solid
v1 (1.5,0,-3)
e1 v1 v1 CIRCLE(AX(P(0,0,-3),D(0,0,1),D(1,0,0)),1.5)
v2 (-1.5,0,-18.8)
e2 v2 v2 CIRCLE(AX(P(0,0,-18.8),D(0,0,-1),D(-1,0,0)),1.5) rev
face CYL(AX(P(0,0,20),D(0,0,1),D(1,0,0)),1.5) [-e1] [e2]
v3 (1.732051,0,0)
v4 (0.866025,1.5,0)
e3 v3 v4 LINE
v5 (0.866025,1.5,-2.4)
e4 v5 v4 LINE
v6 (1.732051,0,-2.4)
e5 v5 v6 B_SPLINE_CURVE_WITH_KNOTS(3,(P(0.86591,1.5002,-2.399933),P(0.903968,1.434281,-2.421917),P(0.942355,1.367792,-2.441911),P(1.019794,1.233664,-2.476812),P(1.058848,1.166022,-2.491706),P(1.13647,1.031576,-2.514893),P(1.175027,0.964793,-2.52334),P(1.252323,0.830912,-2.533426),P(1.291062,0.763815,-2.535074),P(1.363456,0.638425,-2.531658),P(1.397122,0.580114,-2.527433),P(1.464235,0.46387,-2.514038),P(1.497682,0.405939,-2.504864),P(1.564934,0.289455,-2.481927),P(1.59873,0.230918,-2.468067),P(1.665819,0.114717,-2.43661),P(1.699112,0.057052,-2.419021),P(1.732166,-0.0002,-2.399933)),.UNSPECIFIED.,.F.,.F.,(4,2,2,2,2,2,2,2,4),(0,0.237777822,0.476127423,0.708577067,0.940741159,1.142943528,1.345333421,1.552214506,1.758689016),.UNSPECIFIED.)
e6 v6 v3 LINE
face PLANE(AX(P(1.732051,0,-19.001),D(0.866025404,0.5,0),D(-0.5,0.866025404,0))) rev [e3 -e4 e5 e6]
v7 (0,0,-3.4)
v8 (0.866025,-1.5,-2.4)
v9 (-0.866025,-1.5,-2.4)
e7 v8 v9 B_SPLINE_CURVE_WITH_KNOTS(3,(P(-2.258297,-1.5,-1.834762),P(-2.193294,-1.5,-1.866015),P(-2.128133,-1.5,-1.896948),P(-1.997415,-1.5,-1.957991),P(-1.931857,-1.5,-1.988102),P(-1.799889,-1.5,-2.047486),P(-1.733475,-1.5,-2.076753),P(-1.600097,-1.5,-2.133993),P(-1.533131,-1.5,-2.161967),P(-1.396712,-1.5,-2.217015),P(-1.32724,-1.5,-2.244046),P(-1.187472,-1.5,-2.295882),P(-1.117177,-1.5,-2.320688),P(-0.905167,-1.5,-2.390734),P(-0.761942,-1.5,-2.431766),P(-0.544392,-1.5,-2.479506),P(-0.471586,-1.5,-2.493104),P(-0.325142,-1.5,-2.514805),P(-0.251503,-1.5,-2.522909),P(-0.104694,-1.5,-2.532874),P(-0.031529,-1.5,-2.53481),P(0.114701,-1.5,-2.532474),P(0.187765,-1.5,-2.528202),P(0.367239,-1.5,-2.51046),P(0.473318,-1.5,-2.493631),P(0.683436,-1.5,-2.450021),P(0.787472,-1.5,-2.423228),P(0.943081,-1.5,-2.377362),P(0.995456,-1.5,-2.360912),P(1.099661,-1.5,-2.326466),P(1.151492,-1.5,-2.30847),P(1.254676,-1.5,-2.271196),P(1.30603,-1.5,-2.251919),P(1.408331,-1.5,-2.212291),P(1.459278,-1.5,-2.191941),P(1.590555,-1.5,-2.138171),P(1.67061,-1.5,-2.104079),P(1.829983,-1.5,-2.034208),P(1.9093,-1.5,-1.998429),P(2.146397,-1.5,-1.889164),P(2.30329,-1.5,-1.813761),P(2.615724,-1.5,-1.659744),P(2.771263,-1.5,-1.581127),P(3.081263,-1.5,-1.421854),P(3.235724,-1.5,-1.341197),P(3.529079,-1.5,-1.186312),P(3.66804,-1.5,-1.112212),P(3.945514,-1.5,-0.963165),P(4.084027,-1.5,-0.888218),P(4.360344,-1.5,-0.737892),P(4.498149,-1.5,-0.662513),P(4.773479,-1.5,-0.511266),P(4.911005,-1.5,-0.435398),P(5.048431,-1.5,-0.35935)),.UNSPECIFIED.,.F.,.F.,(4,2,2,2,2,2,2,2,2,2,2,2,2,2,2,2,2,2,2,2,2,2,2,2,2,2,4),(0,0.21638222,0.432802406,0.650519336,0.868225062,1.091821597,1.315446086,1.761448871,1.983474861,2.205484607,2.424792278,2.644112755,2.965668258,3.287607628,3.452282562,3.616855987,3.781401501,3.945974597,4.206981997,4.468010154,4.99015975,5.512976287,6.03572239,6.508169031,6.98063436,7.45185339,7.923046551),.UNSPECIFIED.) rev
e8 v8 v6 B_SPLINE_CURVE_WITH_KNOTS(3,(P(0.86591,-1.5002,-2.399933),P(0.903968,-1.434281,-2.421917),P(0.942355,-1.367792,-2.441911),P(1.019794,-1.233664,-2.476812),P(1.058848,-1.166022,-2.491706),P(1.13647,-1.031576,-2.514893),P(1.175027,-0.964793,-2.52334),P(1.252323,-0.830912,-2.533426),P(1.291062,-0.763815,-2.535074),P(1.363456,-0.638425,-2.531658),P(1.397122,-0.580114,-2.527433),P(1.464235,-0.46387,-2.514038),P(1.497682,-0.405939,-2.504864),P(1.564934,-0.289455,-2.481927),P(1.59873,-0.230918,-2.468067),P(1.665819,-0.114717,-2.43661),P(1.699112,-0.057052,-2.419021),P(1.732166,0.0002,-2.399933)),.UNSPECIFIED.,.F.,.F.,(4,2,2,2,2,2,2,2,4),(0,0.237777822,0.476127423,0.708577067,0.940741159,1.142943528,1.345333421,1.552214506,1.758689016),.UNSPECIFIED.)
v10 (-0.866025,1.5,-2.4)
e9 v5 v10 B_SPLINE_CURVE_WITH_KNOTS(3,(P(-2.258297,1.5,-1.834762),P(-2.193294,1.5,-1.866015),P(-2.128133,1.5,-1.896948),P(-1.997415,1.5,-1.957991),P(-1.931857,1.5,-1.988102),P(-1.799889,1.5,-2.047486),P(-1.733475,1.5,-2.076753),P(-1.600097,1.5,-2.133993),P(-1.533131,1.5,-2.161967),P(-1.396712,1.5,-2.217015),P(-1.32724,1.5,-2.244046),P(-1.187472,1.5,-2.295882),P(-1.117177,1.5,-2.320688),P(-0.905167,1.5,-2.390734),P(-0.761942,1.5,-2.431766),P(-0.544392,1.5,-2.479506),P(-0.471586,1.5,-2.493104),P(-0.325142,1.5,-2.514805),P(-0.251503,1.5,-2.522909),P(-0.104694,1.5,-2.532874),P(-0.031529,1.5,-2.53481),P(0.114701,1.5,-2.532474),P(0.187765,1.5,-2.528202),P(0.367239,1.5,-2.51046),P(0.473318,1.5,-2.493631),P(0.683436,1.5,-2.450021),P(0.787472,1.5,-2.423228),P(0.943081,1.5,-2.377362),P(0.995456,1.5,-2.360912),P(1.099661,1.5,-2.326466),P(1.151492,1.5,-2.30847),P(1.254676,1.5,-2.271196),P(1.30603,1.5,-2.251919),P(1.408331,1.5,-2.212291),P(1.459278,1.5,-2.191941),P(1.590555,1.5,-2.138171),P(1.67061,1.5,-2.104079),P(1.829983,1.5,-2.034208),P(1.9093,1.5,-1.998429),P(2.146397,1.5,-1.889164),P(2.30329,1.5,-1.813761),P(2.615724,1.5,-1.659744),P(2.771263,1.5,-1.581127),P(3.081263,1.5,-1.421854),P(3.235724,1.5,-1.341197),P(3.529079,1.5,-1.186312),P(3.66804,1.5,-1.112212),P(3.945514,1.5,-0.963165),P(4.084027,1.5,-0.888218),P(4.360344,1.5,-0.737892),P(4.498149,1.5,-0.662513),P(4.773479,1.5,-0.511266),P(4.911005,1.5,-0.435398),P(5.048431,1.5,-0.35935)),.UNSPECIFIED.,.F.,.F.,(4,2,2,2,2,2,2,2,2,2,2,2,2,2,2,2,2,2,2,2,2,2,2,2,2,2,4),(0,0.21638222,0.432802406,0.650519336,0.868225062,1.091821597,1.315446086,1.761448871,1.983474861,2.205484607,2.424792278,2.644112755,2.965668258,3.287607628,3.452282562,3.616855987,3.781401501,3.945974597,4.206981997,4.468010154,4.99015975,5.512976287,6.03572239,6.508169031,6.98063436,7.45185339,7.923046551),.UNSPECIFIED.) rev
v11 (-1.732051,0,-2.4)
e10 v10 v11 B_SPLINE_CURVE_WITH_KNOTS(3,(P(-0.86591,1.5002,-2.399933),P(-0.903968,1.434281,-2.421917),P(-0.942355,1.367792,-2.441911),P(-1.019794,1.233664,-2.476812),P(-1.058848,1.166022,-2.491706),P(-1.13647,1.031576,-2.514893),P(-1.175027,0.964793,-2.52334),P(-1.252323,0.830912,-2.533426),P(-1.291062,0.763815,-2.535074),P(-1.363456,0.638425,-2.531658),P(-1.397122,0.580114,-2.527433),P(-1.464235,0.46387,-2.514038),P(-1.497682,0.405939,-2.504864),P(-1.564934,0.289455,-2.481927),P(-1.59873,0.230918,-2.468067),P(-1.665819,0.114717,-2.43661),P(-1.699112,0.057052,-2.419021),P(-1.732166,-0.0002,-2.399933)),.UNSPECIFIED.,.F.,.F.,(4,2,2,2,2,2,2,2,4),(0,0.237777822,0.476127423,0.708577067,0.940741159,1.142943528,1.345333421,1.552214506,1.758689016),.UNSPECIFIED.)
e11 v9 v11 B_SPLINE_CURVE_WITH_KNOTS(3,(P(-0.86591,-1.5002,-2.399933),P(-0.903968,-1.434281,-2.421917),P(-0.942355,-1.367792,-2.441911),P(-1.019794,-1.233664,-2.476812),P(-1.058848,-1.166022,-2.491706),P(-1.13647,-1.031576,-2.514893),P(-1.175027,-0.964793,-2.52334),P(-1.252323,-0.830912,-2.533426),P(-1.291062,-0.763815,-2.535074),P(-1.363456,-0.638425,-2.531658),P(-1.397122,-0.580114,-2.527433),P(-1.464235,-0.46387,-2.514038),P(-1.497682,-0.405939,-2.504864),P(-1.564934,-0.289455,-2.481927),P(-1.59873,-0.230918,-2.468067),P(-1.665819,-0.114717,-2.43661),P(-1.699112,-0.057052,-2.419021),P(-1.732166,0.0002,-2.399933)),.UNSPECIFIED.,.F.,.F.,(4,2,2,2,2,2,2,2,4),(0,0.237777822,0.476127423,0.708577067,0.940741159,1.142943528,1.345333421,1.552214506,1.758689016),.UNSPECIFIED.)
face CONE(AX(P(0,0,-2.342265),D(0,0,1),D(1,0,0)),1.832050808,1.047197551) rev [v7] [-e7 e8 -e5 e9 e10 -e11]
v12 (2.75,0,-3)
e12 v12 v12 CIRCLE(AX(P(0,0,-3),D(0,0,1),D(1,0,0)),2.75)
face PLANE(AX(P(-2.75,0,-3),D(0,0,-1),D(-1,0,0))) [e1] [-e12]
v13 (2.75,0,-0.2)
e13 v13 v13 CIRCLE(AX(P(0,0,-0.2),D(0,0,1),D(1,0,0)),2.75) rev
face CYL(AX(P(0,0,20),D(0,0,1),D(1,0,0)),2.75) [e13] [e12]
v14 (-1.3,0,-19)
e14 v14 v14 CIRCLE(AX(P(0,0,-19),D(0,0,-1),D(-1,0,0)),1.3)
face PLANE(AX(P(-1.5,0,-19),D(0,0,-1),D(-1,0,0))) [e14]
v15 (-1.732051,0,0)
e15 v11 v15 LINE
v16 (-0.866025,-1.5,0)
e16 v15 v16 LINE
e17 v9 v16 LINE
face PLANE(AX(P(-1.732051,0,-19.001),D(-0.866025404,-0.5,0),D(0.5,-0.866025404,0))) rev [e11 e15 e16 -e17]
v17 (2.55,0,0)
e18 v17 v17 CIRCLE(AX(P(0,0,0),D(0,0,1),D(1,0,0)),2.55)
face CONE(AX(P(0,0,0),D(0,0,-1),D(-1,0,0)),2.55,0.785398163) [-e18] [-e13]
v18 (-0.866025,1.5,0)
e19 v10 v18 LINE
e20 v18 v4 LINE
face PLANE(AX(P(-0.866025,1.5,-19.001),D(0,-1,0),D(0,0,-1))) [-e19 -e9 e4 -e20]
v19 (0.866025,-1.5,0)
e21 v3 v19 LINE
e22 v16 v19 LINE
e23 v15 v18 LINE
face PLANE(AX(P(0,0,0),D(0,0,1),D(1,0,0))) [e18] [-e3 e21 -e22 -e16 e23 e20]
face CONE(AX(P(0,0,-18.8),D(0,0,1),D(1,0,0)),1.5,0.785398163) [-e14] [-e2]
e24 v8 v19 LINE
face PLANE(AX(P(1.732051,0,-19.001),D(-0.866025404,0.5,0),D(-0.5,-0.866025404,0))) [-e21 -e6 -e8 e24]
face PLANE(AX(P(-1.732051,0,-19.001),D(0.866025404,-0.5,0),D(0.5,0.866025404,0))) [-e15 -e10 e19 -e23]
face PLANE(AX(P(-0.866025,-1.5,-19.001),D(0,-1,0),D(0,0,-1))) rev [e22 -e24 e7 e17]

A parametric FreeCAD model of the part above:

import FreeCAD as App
import Part
import Sketcher

V = App.Vector
Q = App.Units.Quantity


def edges_at(feature, points):
    """Names of the edges that pass closest to the given points."""
    edges = feature.Shape.Edges
    near = lambda p: min(range(len(edges)), key=lambda i: edges[i].distToShape(Part.Vertex(*p))[0])
    return sorted({f"Edge{near(p) + 1}" for p in points})

doc = App.newDocument("Part")
params = doc.addObject("Spreadsheet::Sheet", "Params")
for row, (alias, value) in enumerate([
    ("sketch1_height", "19 mm"),
    ("sketch1_height2", "16 mm"),
    ("sketch1_width", "1.5 mm"),
    ("sketch1_width2", "2.75 mm"),
    ("revolution_angle", "360 deg"),
    ("chamfer_size", "0.2 mm"),
    ("chamfer2_size", "0.2 mm"),
    ("pocket1_length", "2.4 mm"),
    ("sketch3_height", "3.4 mm"),
    ("groove_angle", "360 deg"),
], start=1):
    params.set(f"A{row}", alias)
    params.set(f"B{row}", "=" + value)
    params.setAlias(f"B{row}", alias)

body = doc.addObject("PartDesign::Body", "Body")

sketch1 = doc.addObject("Sketcher::SketchObject", "Sketch")
body.addObject(sketch1)
sketch1.AttachmentSupport = (doc.XZ_Plane, [""])
sketch1.MapMode = "FlatFace"
sketch1.addGeometry(Part.LineSegment(V(-2.8, 0, 0), V(0, 0, 0)), False)
sketch1.addGeometry(Part.LineSegment(V(0, 0, 0), V(0, -19, 0)), False)
sketch1.addGeometry(Part.LineSegment(V(0, -19, 0), V(-1.5, -19, 0)), False)
sketch1.addGeometry(Part.LineSegment(V(-1.5, -19, 0), V(-1.5, -3, 0)), False)
sketch1.addGeometry(Part.LineSegment(V(-1.5, -3, 0), V(-2.8, -3, 0)), False)
sketch1.addGeometry(Part.LineSegment(V(-2.8, -3, 0), V(-2.8, 0, 0)), False)
sketch1.addConstraint(Sketcher.Constraint("Coincident", 0, 2, 1, 1))
sketch1.addConstraint(Sketcher.Constraint("Coincident", 1, 2, 2, 1))
sketch1.addConstraint(Sketcher.Constraint("Coincident", 2, 2, 3, 1))
sketch1.addConstraint(Sketcher.Constraint("Coincident", 3, 2, 4, 1))
sketch1.addConstraint(Sketcher.Constraint("Coincident", 4, 2, 5, 1))
sketch1.addConstraint(Sketcher.Constraint("Coincident", 5, 2, 0, 1))
sketch1.addConstraint(Sketcher.Constraint("Horizontal", 0))
sketch1.addConstraint(Sketcher.Constraint("Vertical", 1))
sketch1.addConstraint(Sketcher.Constraint("Horizontal", 2))
sketch1.addConstraint(Sketcher.Constraint("Vertical", 3))
sketch1.addConstraint(Sketcher.Constraint("Horizontal", 4))
sketch1.addConstraint(Sketcher.Constraint("Vertical", 5))
sketch1.addConstraint(Sketcher.Constraint("Coincident", 0, 2, -1, 1))
sketch1.addConstraint(Sketcher.Constraint("DistanceY", 1, 2, 1, 1, 19.0))
sketch1.addConstraint(Sketcher.Constraint("DistanceY", 3, 1, 3, 2, 16.0))
sketch1.addConstraint(Sketcher.Constraint("DistanceX", 2, 2, 2, 1, 1.5))
sketch1.addConstraint(Sketcher.Constraint("DistanceX", 0, 1, 0, 2, 2.75))
sketch1.setExpression("Constraints[13]", "Params.sketch1_height")
sketch1.setExpression("Constraints[14]", "Params.sketch1_height2")
sketch1.setExpression("Constraints[15]", "Params.sketch1_width")
sketch1.setExpression("Constraints[16]", "Params.sketch1_width2")
revolution = doc.addObject("PartDesign::Revolution", "Revolution")
body.addObject(revolution)
revolution.Profile = sketch1
revolution.ReferenceAxis = (sketch1, ["V_Axis"])
revolution.setExpression("Angle", "Params.revolution_angle")
doc.recompute()

chamfer = doc.addObject("PartDesign::Chamfer", "Chamfer")
body.addObject(chamfer)
chamfer.Base = (revolution, edges_at(revolution, [(2.75, 0, 0)]))
chamfer.setExpression("Size", "Params.chamfer_size")
doc.recompute()

chamfer2 = doc.addObject("PartDesign::Chamfer", "Chamfer001")
body.addObject(chamfer2)
chamfer2.Base = (chamfer, edges_at(chamfer, [(1.5, 0, -19)]))
chamfer2.setExpression("Size", "Params.chamfer2_size")

sketch2 = doc.addObject("Sketcher::SketchObject", "Sketch001")
body.addObject(sketch2)
sketch2.AttachmentSupport = (doc.XY_Plane, [""])
sketch2.MapMode = "FlatFace"
sketch2.addGeometry(Part.LineSegment(V(-0.9, 1.5, 0), V(-1.7, 0, 0)), False)
sketch2.addGeometry(Part.LineSegment(V(-1.7, 0, 0), V(-0.9, -1.5, 0)), False)
sketch2.addGeometry(Part.LineSegment(V(-0.9, -1.5, 0), V(0.9, -1.5, 0)), False)
sketch2.addGeometry(Part.LineSegment(V(0.9, -1.5, 0), V(1.7, 0, 0)), False)
sketch2.addGeometry(Part.LineSegment(V(1.7, 0, 0), V(0.9, 1.5, 0)), False)
sketch2.addGeometry(Part.LineSegment(V(0.9, 1.5, 0), V(-0.9, 1.5, 0)), False)
sketch2.addConstraint(Sketcher.Constraint("Coincident", 0, 2, 1, 1))
sketch2.addConstraint(Sketcher.Constraint("Coincident", 1, 2, 2, 1))
sketch2.addConstraint(Sketcher.Constraint("Coincident", 2, 2, 3, 1))
sketch2.addConstraint(Sketcher.Constraint("Coincident", 3, 2, 4, 1))
sketch2.addConstraint(Sketcher.Constraint("Coincident", 4, 2, 5, 1))
sketch2.addConstraint(Sketcher.Constraint("Coincident", 5, 2, 0, 1))
sketch2.addConstraint(Sketcher.Constraint("Horizontal", 2))
sketch2.addConstraint(Sketcher.Constraint("Horizontal", 5))
sketch2.addConstraint(Sketcher.Constraint("Symmetric", 0, 2, 3, 2, -1, 1))
sketch2.addConstraint(Sketcher.Constraint("Symmetric", 1, 2, 4, 2, -1, 1))
sketch2.addConstraint(Sketcher.Constraint("PointOnObject", 0, 2, -1))
sketch2.addConstraint(Sketcher.Constraint("Parallel", 0, 3))
sketch2.addConstraint(Sketcher.Constraint("Vertical", 2, 2, 4, 2))
sketch2.addConstraint(Sketcher.Constraint("Angle", 0, Q("-120 deg")))
sketch2.addConstraint(Sketcher.Constraint("DistanceY", 2, 2, 4, 2, 3.0))
sketch2.addConstraint(Sketcher.Constraint("DistanceX", 2, 1, 2, 2, 1.732051))
pocket1 = doc.addObject("PartDesign::Pocket", "Pocket")
body.addObject(pocket1)
pocket1.Profile = sketch2
pocket1.setExpression("Length", "Params.pocket1_length")

sketch3 = doc.addObject("Sketcher::SketchObject", "Sketch002")
body.addObject(sketch3)
sketch3.AttachmentSupport = (doc.XZ_Plane, [""])
sketch3.MapMode = "FlatFace"
sketch3.addGeometry(Part.LineSegment(V(-1.8, 0, 0), V(0, 0, 0)), False)
sketch3.addGeometry(Part.LineSegment(V(0, 0, 0), V(0, -3.4, 0)), False)
sketch3.addGeometry(Part.LineSegment(V(0, -3.4, 0), V(-1.8, -2.3, 0)), False)
sketch3.addGeometry(Part.LineSegment(V(-1.8, -2.3, 0), V(-1.8, 0, 0)), False)
sketch3.addConstraint(Sketcher.Constraint("Coincident", 0, 2, 1, 1))
sketch3.addConstraint(Sketcher.Constraint("Coincident", 1, 2, 2, 1))
sketch3.addConstraint(Sketcher.Constraint("Coincident", 2, 2, 3, 1))
sketch3.addConstraint(Sketcher.Constraint("Coincident", 3, 2, 0, 1))
sketch3.addConstraint(Sketcher.Constraint("Horizontal", 0))
sketch3.addConstraint(Sketcher.Constraint("Vertical", 1))
sketch3.addConstraint(Sketcher.Constraint("Vertical", 3))
sketch3.addConstraint(Sketcher.Constraint("Coincident", 0, 2, -1, 1))
sketch3.addConstraint(Sketcher.Constraint("Angle", 2, Q("150 deg")))
sketch3.addConstraint(Sketcher.Constraint("DistanceY", 1, 2, 1, 1, 3.4))
sketch3.addConstraint(Sketcher.Constraint("DistanceX", 0, 1, 0, 2, 1.832051))
sketch3.setExpression("Constraints[9]", "Params.sketch3_height")
groove = doc.addObject("PartDesign::Groove", "Groove")
body.addObject(groove)
groove.Profile = sketch3
groove.ReferenceAxis = (sketch3, ["V_Axis"])
groove.setExpression("Angle", "Params.groove_angle")

sketch4 = doc.addObject("Sketcher::SketchObject", "Sketch003")
body.addObject(sketch4)
sketch4.AttachmentSupport = (doc.XY_Plane, [""])
sketch4.MapMode = "FlatFace"
sketch4.addGeometry(Part.Circle(V(0, 0, 0), V(0, 0, 1), 1.8), False)
sketch4.addGeometry(Part.LineSegment(V(-0.9, -1.5, 0), V(-1.7, 0, 0)), False)
sketch4.addGeometry(Part.LineSegment(V(-1.7, 0, 0), V(-0.9, 1.5, 0)), False)
sketch4.addGeometry(Part.LineSegment(V(-0.9, 1.5, 0), V(0.9, 1.5, 0)), False)
sketch4.addGeometry(Part.LineSegment(V(0.9, 1.5, 0), V(1.7, 0, 0)), False)
sketch4.addGeometry(Part.LineSegment(V(1.7, 0, 0), V(0.9, -1.5, 0)), False)
sketch4.addGeometry(Part.LineSegment(V(0.9, -1.5, 0), V(-0.9, -1.5, 0)), False)
sketch4.addConstraint(Sketcher.Constraint("Coincident", 1, 2, 2, 1))
sketch4.addConstraint(Sketcher.Constraint("Coincident", 2, 2, 3, 1))
sketch4.addConstraint(Sketcher.Constraint("Coincident", 3, 2, 4, 1))
sketch4.addConstraint(Sketcher.Constraint("Coincident", 4, 2, 5, 1))
sketch4.addConstraint(Sketcher.Constraint("Coincident", 5, 2, 6, 1))
sketch4.addConstraint(Sketcher.Constraint("Coincident", 6, 2, 1, 1))
sketch4.addConstraint(Sketcher.Constraint("Horizontal", 3))
sketch4.addConstraint(Sketcher.Constraint("Horizontal", 6))
sketch4.addConstraint(Sketcher.Constraint("Coincident", 0, 3, -1, 1))
sketch4.addConstraint(Sketcher.Constraint("Symmetric", 1, 2, 4, 2, -1, 1))
sketch4.addConstraint(Sketcher.Constraint("Symmetric", 2, 2, 5, 2, -1, 1))
sketch4.addConstraint(Sketcher.Constraint("PointOnObject", 1, 2, -1))
sketch4.addConstraint(Sketcher.Constraint("Parallel", 1, 4))
sketch4.addConstraint(Sketcher.Constraint("Vertical", 3, 2, 5, 2))
sketch4.addConstraint(Sketcher.Constraint("Angle", 1, Q("120 deg")))
sketch4.addConstraint(Sketcher.Constraint("DistanceY", 5, 2, 3, 2, 3.0))
sketch4.addConstraint(Sketcher.Constraint("Diameter", 0, 3.664102))
sketch4.addConstraint(Sketcher.Constraint("DistanceX", 3, 1, 3, 2, 1.732051))
pad1 = doc.addObject("PartDesign::Pad", "Pad")
body.addObject(pad1)
pad1.Profile = sketch4
pad1.Type = "UpToFirst"
pad1.Reversed = True

doc.recompute()
